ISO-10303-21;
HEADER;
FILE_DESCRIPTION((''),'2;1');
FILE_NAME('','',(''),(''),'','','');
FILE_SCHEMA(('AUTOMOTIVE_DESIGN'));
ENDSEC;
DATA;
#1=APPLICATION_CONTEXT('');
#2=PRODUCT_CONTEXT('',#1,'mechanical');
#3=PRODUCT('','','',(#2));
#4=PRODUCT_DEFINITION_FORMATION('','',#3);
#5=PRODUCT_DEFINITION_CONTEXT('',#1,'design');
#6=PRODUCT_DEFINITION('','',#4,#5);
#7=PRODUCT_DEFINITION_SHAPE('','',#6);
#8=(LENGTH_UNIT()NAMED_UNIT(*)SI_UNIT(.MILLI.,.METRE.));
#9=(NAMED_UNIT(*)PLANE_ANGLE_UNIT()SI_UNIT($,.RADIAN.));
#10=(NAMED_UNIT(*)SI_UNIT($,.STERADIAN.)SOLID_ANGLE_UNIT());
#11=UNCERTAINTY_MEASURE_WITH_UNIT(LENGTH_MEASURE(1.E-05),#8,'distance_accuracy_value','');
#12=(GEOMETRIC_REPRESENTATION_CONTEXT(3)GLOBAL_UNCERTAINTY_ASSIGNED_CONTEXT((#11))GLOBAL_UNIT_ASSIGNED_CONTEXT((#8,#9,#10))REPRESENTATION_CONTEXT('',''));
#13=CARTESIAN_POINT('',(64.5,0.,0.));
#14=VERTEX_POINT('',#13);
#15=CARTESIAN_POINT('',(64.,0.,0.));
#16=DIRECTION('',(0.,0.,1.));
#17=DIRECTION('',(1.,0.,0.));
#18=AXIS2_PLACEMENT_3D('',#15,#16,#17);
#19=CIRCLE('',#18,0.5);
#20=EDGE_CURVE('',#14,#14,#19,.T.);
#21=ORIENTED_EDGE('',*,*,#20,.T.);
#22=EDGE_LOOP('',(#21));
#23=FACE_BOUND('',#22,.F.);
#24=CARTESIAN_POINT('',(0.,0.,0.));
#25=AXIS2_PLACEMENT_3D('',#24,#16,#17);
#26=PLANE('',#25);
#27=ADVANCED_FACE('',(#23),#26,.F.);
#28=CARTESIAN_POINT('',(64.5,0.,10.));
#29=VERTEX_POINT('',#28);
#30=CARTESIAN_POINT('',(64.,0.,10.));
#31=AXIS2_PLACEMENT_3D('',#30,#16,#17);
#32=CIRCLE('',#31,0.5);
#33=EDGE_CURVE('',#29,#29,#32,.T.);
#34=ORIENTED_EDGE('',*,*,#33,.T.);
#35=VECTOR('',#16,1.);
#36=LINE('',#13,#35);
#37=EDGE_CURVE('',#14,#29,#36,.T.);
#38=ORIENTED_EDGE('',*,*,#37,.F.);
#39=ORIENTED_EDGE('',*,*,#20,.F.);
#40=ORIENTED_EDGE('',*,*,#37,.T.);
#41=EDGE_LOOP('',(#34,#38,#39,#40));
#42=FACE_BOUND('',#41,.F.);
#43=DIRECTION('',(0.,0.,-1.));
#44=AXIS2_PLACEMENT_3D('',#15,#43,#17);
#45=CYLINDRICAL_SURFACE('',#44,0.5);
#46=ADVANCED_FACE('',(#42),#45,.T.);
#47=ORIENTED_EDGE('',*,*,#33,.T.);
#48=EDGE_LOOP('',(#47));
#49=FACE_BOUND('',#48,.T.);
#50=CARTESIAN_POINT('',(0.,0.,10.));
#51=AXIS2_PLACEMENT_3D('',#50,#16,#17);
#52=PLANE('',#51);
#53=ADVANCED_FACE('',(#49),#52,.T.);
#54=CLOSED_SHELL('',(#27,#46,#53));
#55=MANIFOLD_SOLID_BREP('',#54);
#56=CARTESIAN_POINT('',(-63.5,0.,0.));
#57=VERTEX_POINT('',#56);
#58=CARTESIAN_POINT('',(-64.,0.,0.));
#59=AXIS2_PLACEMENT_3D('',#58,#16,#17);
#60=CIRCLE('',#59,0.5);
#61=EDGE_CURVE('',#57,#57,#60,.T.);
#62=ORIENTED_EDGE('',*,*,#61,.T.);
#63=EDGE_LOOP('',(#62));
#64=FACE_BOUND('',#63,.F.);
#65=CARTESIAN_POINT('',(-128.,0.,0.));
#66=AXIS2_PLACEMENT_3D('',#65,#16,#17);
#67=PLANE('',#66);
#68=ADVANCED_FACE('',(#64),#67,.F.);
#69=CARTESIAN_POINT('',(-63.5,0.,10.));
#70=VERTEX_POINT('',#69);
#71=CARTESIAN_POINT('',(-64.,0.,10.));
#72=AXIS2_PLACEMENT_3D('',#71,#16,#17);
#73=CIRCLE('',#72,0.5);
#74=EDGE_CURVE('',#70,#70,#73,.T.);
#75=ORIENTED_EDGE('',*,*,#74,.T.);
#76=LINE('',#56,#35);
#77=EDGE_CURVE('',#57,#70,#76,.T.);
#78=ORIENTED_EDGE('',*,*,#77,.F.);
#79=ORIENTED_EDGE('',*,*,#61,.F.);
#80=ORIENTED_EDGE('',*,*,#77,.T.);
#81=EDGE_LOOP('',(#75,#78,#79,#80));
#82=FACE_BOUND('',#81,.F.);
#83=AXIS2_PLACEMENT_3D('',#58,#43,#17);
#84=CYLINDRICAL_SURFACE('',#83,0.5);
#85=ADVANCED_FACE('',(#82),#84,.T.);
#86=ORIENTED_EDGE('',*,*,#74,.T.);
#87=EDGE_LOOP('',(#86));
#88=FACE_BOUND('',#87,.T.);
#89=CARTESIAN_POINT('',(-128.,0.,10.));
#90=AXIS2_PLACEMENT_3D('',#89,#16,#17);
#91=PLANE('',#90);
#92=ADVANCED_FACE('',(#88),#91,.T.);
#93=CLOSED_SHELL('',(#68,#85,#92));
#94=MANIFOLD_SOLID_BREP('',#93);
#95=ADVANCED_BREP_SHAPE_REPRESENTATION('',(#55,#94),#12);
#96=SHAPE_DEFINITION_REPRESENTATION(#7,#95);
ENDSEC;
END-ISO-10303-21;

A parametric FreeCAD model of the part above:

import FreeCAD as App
import Part
import Sketcher

V = App.Vector

doc = App.newDocument("Part")
body = doc.addObject("PartDesign::Body", "Body")
body.AllowCompound = True

# Sketch on XY plane
sketch1 = doc.addObject("Sketcher::SketchObject", "Sketch")
body.addObject(sketch1)
sketch1.AttachmentSupport = (doc.XY_Plane, [""])
sketch1.MapMode = "FlatFace"
sketch1.addGeometry(Part.Circle(V(64, 0, 0), V(0, 0, 1), 0.5), False)
sketch1.addConstraint(Sketcher.Constraint("PointOnObject", 0, 3, -1))
sketch1.addConstraint(Sketcher.Constraint("Diameter", 0, 1.0))
sketch1.addConstraint(Sketcher.Constraint("DistanceX", -1, 1, 0, 3, 64.0))
pad1 = doc.addObject("PartDesign::Pad", "Pad")
body.addObject(pad1)
pad1.Profile = sketch1
pad1.Length = 10
doc.recompute()

linearpattern = doc.addObject("PartDesign::LinearPattern", "LinearPattern")
body.addObject(linearpattern)
linearpattern.Originals = [pad1]
linearpattern.Direction = (doc.X_Axis, [""])
linearpattern.Mode = "offset"
linearpattern.Offset = 128
linearpattern.Occurrences = 2
linearpattern.Reversed = True
body.Tip = linearpattern

doc.recompute()
